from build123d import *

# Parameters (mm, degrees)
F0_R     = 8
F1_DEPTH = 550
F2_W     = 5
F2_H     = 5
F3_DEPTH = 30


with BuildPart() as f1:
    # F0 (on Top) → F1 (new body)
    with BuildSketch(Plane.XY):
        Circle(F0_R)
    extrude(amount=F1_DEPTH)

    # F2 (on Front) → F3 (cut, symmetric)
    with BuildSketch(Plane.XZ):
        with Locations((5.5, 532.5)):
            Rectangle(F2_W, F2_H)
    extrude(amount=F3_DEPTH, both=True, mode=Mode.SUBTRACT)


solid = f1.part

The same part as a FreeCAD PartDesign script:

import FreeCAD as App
import Part
import Sketcher

V = App.Vector
Q = App.Units.Quantity


def add_polygon(sketch, points):
    """Adds a closed chain of lines whose ends are joined by coincident constraints."""
    first, n = sketch.GeometryCount, len(points)
    for a, b in zip(points, points[1:] + points[:1]):
        sketch.addGeometry(Part.LineSegment(App.Vector(*a, 0), App.Vector(*b, 0)), False)
    for i in range(n):
        sketch.addConstraint(Sketcher.Constraint("Coincident", first + i, 2, first + (i + 1) % n, 1))

doc = App.newDocument("Part")
body = doc.addObject("PartDesign::Body", "Body")

sketch1 = doc.addObject("Sketcher::SketchObject", "Sketch")
body.addObject(sketch1)
sketch1.AttachmentSupport = (doc.XY_Plane, [""])
sketch1.MapMode = "FlatFace"
sketch1.addGeometry(Part.Circle(V(0, 0, 0), V(0, 0, 1), 8), False)
sketch1.addConstraint([
    Sketcher.Constraint("Coincident", 0, 3, -1, 1),
    Sketcher.Constraint("Diameter", 0, Q("16 mm")),
])
pad1 = doc.addObject("PartDesign::Pad", "Pad")
body.addObject(pad1)
pad1.Profile = sketch1
pad1.Length = 550

sketch2 = doc.addObject("Sketcher::SketchObject", "Sketch001")
body.addObject(sketch2)
sketch2.AttachmentSupport = (doc.XZ_Plane, [""])
sketch2.MapMode = "FlatFace"
add_polygon(sketch2, [(3, 535), (3, 530), (8, 530), (8, 535)])
sketch2.addConstraint([
    Sketcher.Constraint("Vertical", 0),
    Sketcher.Constraint("Horizontal", 1),
    Sketcher.Constraint("Vertical", 2),
    Sketcher.Constraint("Horizontal", 3),
    Sketcher.Constraint("Equal", 3, 0),
    Sketcher.Constraint("DistanceX", 1, 1, 1, 2, Q("5 mm")),
    Sketcher.Constraint("DistanceX", -1, 1, 0, 2, Q("3 mm")),
    Sketcher.Constraint("DistanceY", -1, 1, 0, 2, Q("530 mm")),
])
pocket1 = doc.addObject("PartDesign::Pocket", "Pocket")
body.addObject(pocket1)
pocket1.Profile = sketch2
pocket1.Length = 60
pocket1.Midplane = True

doc.recompute()
